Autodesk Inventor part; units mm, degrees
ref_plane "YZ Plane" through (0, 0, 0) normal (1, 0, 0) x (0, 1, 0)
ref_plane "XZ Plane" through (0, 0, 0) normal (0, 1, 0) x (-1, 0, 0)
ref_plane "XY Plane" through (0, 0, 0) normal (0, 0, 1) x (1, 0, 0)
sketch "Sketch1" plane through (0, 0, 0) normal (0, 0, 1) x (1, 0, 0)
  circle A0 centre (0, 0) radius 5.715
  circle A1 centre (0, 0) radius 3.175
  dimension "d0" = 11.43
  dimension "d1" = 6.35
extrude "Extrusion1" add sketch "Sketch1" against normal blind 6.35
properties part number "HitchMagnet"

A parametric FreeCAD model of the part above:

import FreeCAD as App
import Part
import Sketcher

V = App.Vector
Q = App.Units.Quantity

doc = App.newDocument("Part")
body = doc.addObject("PartDesign::Body", "Body")

sketch1 = doc.addObject("Sketcher::SketchObject", "Sketch")
body.addObject(sketch1)
sketch1.AttachmentSupport = (doc.XY_Plane, [""])
sketch1.MapMode = "FlatFace"
sketch1.addGeometry(Part.Circle(V(0, 0, 0), V(0, 0, 1), 5.715), False)
sketch1.addGeometry(Part.Circle(V(0, 0, 0), V(0, 0, 1), 3.175), False)
sketch1.addConstraint(Sketcher.Constraint("Coincident", 0, 3, -1, 1))
sketch1.addConstraint(Sketcher.Constraint("Coincident", 1, 3, -1, 1))
sketch1.addConstraint(Sketcher.Constraint("Diameter", 0, Q("0.45 in")))
sketch1.addConstraint(Sketcher.Constraint("Diameter", 1, Q("0.25 in")))
pad1 = doc.addObject("PartDesign::Pad", "Pad")
body.addObject(pad1)
pad1.Profile = sketch1
pad1.Length = Q("0.25 in")
pad1.Reversed = True

doc.recompute()
